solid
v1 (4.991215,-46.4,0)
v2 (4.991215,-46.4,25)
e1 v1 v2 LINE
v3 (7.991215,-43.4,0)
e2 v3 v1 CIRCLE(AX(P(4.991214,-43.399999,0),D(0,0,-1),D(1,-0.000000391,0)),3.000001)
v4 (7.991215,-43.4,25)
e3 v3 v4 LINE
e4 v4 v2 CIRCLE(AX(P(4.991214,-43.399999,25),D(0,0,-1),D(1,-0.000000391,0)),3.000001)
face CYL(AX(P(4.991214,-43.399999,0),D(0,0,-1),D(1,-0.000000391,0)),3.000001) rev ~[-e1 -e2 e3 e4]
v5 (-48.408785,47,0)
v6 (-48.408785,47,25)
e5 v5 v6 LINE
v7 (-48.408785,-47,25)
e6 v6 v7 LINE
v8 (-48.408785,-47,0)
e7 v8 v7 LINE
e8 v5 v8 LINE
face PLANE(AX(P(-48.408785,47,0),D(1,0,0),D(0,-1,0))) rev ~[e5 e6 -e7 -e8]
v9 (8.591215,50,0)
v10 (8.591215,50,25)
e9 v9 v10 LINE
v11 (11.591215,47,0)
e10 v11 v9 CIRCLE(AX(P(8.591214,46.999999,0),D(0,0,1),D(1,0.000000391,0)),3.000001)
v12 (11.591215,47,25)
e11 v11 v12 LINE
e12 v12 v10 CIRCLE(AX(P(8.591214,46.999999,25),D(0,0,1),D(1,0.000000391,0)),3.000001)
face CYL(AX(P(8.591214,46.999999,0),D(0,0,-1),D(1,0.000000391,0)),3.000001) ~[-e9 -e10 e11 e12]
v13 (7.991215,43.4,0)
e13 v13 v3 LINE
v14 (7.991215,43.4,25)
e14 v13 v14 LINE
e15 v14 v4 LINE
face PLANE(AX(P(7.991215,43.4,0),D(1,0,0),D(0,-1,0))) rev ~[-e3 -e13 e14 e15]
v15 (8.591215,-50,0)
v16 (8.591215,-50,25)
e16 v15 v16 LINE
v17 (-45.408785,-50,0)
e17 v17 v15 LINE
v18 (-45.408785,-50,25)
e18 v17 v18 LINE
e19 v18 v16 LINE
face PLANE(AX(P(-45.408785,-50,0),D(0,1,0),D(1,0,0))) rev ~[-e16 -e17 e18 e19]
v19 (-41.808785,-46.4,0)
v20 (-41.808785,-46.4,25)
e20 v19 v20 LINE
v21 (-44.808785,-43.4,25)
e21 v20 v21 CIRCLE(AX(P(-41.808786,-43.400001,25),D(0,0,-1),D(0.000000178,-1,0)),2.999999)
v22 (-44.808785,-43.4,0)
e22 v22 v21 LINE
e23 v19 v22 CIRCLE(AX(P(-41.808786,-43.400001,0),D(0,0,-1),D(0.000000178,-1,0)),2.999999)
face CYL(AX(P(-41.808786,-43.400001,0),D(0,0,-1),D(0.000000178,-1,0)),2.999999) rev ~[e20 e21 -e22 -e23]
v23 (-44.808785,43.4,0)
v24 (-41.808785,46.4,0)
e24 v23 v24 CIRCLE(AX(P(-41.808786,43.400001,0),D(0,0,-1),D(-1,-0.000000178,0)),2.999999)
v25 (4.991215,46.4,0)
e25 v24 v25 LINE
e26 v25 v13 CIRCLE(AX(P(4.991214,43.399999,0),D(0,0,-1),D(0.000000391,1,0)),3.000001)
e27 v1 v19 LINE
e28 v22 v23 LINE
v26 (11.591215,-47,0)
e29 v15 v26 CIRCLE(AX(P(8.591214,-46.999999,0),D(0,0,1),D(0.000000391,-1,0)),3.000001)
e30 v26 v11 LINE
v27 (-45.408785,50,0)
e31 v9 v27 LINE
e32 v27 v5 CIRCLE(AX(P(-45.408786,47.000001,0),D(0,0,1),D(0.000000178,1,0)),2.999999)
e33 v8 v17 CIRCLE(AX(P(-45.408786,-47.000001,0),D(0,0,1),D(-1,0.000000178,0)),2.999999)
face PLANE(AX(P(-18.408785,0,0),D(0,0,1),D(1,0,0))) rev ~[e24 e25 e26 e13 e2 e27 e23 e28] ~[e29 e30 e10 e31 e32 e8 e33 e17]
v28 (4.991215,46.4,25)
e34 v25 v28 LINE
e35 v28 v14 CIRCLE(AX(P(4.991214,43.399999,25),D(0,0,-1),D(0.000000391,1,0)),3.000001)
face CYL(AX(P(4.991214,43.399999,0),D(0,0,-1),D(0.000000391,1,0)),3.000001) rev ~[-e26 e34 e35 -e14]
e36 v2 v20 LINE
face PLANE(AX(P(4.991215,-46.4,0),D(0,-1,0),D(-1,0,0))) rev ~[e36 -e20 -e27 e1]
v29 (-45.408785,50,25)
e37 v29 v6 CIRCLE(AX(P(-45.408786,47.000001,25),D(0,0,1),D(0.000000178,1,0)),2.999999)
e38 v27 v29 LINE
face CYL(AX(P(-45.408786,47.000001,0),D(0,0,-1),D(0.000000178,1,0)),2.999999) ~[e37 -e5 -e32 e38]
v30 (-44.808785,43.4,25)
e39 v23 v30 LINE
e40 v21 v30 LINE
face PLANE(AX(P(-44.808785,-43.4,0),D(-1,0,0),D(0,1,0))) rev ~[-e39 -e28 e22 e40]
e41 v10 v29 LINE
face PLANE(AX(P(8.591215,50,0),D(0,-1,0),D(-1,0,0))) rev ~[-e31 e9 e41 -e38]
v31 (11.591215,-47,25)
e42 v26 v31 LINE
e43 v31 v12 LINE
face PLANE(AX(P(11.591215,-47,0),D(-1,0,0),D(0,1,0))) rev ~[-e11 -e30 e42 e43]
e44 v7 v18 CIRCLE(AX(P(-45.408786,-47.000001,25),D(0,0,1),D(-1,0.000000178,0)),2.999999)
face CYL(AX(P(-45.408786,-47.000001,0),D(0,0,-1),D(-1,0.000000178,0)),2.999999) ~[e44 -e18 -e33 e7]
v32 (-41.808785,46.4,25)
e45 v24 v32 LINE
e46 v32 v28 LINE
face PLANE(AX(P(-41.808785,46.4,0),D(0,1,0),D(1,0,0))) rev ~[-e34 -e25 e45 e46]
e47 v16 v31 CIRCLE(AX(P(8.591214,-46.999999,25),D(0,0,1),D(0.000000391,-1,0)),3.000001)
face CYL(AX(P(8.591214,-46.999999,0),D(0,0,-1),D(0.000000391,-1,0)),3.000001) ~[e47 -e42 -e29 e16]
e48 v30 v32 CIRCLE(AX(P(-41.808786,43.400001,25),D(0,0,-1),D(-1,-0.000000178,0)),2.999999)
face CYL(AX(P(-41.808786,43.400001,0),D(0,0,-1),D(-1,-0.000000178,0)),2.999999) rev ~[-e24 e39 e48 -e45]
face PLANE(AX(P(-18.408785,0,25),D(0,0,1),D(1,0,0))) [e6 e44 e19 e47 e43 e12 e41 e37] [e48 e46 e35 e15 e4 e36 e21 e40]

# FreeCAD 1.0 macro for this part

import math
import FreeCAD as App
import Part
import Sketcher
Q = App.Units.Quantity

doc = App.newDocument("Part")
body = doc.addObject("PartDesign::Body", "Body")

# Sketch on XY plane
sketch1 = doc.addObject("Sketcher::SketchObject", "Sketch")
body.addObject(sketch1)
sketch1.AttachmentSupport = (doc.XY_Plane, [""])
sketch1.MapMode = "FlatFace"
sketch1.addGeometry([
    Part.LineSegment(App.Vector(8.6, 50, 0), App.Vector(-45.4, 50, 0)),  # 0
    Part.ArcOfCircle(Part.Circle(App.Vector(-45.4, 47, 0), App.Vector(0, 0, 1), 3), math.radians(90), math.radians(180)),  # 1
    Part.LineSegment(App.Vector(-48.4, 47, 0), App.Vector(-48.4, -47, 0)),  # 2
    Part.ArcOfCircle(Part.Circle(App.Vector(-45.4, -47, 0), App.Vector(0, 0, 1), 3), math.radians(180), math.radians(270)),  # 3
    Part.LineSegment(App.Vector(-45.4, -50, 0), App.Vector(8.6, -50, 0)),  # 4
    Part.ArcOfCircle(Part.Circle(App.Vector(8.6, -47, 0), App.Vector(0, 0, 1), 3), math.radians(-90), math.radians(0)),  # 5
    Part.LineSegment(App.Vector(11.6, -47, 0), App.Vector(11.6, 47, 0)),  # 6
    Part.ArcOfCircle(Part.Circle(App.Vector(8.6, 47, 0), App.Vector(0, 0, 1), 3), math.radians(0), math.radians(90)),  # 7
    Part.ArcOfCircle(Part.Circle(App.Vector(-41.8, 43.4, 0), App.Vector(0, 0, 1), 3), math.radians(90), math.radians(180)),  # 8
    Part.LineSegment(App.Vector(-41.8, 46.4, 0), App.Vector(5, 46.4, 0)),  # 9
    Part.ArcOfCircle(Part.Circle(App.Vector(5, 43.4, 0), App.Vector(0, 0, 1), 3), math.radians(0), math.radians(90)),  # 10
    Part.LineSegment(App.Vector(8, 43.4, 0), App.Vector(8, -43.4, 0)),  # 11
    Part.ArcOfCircle(Part.Circle(App.Vector(5, -43.4, 0), App.Vector(0, 0, 1), 3), math.radians(-90), math.radians(0)),  # 12
    Part.LineSegment(App.Vector(5, -46.4, 0), App.Vector(-41.8, -46.4, 0)),  # 13
    Part.ArcOfCircle(Part.Circle(App.Vector(-41.8, -43.4, 0), App.Vector(0, 0, 1), 3), math.radians(180), math.radians(270)),  # 14
    Part.LineSegment(App.Vector(-44.8, -43.4, 0), App.Vector(-44.8, 43.4, 0)),  # 15
], False)
sketch1.addConstraint([
    Sketcher.Constraint("Tangent", 0, 2, 1, 1),
    Sketcher.Constraint("Tangent", 1, 2, 2, 1),
    Sketcher.Constraint("Tangent", 2, 2, 3, 1),
    Sketcher.Constraint("Tangent", 3, 2, 4, 1),
    Sketcher.Constraint("Tangent", 4, 2, 5, 1),
    Sketcher.Constraint("Tangent", 5, 2, 6, 1),
    Sketcher.Constraint("Tangent", 6, 2, 7, 1),
    Sketcher.Constraint("Tangent", 7, 2, 0, 1),
    Sketcher.Constraint("Tangent", 8, 1, 9, 1),
    Sketcher.Constraint("Tangent", 9, 2, 10, 2),
    Sketcher.Constraint("Tangent", 10, 1, 11, 1),
    Sketcher.Constraint("Tangent", 11, 2, 12, 2),
    Sketcher.Constraint("Tangent", 12, 1, 13, 1),
    Sketcher.Constraint("Tangent", 13, 2, 14, 2),
    Sketcher.Constraint("Tangent", 14, 1, 15, 1),
    Sketcher.Constraint("Tangent", 15, 2, 8, 2),
    Sketcher.Constraint("Horizontal", 0),
    Sketcher.Constraint("Vertical", 2),
    Sketcher.Constraint("Horizontal", 4),
    Sketcher.Constraint("Vertical", 6),
    Sketcher.Constraint("Horizontal", 9),
    Sketcher.Constraint("Vertical", 11),
    Sketcher.Constraint("Horizontal", 13),
    Sketcher.Constraint("Vertical", 15),
    Sketcher.Constraint("Equal", 1, 3),
    Sketcher.Constraint("Equal", 3, 5),
    Sketcher.Constraint("Equal", 5, 7),
    Sketcher.Constraint("Equal", 7, 8),
    Sketcher.Constraint("Equal", 8, 10),
    Sketcher.Constraint("Equal", 10, 12),
    Sketcher.Constraint("Equal", 12, 14),
    Sketcher.Constraint("Radius", 1, Q("2.999999 mm")),
    Sketcher.Constraint("DistanceX", 0, 2, 0, 1, Q("54 mm")),
    Sketcher.Constraint("DistanceY", 2, 2, 2, 1, Q("94 mm")),
    Sketcher.Constraint("DistanceX", 9, 1, 9, 2, Q("46.8 mm")),
    Sketcher.Constraint("DistanceY", 11, 2, 11, 1, Q("86.8 mm")),
    Sketcher.Constraint("DistanceY", -1, 1, 1, 3, Q("47.000001 mm")),
    Sketcher.Constraint("DistanceY", -1, 1, 8, 3, Q("43.400001 mm")),
    Sketcher.Constraint("DistanceX", 1, 3, 8, 3, Q("3.6 mm")),
    Sketcher.Constraint("DistanceX", 1, 3, -1, 1, Q("45.408786 mm")),
])
pad1 = doc.addObject("PartDesign::Pad", "Pad")
body.addObject(pad1)
pad1.Profile = sketch1
pad1.Length = 25

doc.recompute()
